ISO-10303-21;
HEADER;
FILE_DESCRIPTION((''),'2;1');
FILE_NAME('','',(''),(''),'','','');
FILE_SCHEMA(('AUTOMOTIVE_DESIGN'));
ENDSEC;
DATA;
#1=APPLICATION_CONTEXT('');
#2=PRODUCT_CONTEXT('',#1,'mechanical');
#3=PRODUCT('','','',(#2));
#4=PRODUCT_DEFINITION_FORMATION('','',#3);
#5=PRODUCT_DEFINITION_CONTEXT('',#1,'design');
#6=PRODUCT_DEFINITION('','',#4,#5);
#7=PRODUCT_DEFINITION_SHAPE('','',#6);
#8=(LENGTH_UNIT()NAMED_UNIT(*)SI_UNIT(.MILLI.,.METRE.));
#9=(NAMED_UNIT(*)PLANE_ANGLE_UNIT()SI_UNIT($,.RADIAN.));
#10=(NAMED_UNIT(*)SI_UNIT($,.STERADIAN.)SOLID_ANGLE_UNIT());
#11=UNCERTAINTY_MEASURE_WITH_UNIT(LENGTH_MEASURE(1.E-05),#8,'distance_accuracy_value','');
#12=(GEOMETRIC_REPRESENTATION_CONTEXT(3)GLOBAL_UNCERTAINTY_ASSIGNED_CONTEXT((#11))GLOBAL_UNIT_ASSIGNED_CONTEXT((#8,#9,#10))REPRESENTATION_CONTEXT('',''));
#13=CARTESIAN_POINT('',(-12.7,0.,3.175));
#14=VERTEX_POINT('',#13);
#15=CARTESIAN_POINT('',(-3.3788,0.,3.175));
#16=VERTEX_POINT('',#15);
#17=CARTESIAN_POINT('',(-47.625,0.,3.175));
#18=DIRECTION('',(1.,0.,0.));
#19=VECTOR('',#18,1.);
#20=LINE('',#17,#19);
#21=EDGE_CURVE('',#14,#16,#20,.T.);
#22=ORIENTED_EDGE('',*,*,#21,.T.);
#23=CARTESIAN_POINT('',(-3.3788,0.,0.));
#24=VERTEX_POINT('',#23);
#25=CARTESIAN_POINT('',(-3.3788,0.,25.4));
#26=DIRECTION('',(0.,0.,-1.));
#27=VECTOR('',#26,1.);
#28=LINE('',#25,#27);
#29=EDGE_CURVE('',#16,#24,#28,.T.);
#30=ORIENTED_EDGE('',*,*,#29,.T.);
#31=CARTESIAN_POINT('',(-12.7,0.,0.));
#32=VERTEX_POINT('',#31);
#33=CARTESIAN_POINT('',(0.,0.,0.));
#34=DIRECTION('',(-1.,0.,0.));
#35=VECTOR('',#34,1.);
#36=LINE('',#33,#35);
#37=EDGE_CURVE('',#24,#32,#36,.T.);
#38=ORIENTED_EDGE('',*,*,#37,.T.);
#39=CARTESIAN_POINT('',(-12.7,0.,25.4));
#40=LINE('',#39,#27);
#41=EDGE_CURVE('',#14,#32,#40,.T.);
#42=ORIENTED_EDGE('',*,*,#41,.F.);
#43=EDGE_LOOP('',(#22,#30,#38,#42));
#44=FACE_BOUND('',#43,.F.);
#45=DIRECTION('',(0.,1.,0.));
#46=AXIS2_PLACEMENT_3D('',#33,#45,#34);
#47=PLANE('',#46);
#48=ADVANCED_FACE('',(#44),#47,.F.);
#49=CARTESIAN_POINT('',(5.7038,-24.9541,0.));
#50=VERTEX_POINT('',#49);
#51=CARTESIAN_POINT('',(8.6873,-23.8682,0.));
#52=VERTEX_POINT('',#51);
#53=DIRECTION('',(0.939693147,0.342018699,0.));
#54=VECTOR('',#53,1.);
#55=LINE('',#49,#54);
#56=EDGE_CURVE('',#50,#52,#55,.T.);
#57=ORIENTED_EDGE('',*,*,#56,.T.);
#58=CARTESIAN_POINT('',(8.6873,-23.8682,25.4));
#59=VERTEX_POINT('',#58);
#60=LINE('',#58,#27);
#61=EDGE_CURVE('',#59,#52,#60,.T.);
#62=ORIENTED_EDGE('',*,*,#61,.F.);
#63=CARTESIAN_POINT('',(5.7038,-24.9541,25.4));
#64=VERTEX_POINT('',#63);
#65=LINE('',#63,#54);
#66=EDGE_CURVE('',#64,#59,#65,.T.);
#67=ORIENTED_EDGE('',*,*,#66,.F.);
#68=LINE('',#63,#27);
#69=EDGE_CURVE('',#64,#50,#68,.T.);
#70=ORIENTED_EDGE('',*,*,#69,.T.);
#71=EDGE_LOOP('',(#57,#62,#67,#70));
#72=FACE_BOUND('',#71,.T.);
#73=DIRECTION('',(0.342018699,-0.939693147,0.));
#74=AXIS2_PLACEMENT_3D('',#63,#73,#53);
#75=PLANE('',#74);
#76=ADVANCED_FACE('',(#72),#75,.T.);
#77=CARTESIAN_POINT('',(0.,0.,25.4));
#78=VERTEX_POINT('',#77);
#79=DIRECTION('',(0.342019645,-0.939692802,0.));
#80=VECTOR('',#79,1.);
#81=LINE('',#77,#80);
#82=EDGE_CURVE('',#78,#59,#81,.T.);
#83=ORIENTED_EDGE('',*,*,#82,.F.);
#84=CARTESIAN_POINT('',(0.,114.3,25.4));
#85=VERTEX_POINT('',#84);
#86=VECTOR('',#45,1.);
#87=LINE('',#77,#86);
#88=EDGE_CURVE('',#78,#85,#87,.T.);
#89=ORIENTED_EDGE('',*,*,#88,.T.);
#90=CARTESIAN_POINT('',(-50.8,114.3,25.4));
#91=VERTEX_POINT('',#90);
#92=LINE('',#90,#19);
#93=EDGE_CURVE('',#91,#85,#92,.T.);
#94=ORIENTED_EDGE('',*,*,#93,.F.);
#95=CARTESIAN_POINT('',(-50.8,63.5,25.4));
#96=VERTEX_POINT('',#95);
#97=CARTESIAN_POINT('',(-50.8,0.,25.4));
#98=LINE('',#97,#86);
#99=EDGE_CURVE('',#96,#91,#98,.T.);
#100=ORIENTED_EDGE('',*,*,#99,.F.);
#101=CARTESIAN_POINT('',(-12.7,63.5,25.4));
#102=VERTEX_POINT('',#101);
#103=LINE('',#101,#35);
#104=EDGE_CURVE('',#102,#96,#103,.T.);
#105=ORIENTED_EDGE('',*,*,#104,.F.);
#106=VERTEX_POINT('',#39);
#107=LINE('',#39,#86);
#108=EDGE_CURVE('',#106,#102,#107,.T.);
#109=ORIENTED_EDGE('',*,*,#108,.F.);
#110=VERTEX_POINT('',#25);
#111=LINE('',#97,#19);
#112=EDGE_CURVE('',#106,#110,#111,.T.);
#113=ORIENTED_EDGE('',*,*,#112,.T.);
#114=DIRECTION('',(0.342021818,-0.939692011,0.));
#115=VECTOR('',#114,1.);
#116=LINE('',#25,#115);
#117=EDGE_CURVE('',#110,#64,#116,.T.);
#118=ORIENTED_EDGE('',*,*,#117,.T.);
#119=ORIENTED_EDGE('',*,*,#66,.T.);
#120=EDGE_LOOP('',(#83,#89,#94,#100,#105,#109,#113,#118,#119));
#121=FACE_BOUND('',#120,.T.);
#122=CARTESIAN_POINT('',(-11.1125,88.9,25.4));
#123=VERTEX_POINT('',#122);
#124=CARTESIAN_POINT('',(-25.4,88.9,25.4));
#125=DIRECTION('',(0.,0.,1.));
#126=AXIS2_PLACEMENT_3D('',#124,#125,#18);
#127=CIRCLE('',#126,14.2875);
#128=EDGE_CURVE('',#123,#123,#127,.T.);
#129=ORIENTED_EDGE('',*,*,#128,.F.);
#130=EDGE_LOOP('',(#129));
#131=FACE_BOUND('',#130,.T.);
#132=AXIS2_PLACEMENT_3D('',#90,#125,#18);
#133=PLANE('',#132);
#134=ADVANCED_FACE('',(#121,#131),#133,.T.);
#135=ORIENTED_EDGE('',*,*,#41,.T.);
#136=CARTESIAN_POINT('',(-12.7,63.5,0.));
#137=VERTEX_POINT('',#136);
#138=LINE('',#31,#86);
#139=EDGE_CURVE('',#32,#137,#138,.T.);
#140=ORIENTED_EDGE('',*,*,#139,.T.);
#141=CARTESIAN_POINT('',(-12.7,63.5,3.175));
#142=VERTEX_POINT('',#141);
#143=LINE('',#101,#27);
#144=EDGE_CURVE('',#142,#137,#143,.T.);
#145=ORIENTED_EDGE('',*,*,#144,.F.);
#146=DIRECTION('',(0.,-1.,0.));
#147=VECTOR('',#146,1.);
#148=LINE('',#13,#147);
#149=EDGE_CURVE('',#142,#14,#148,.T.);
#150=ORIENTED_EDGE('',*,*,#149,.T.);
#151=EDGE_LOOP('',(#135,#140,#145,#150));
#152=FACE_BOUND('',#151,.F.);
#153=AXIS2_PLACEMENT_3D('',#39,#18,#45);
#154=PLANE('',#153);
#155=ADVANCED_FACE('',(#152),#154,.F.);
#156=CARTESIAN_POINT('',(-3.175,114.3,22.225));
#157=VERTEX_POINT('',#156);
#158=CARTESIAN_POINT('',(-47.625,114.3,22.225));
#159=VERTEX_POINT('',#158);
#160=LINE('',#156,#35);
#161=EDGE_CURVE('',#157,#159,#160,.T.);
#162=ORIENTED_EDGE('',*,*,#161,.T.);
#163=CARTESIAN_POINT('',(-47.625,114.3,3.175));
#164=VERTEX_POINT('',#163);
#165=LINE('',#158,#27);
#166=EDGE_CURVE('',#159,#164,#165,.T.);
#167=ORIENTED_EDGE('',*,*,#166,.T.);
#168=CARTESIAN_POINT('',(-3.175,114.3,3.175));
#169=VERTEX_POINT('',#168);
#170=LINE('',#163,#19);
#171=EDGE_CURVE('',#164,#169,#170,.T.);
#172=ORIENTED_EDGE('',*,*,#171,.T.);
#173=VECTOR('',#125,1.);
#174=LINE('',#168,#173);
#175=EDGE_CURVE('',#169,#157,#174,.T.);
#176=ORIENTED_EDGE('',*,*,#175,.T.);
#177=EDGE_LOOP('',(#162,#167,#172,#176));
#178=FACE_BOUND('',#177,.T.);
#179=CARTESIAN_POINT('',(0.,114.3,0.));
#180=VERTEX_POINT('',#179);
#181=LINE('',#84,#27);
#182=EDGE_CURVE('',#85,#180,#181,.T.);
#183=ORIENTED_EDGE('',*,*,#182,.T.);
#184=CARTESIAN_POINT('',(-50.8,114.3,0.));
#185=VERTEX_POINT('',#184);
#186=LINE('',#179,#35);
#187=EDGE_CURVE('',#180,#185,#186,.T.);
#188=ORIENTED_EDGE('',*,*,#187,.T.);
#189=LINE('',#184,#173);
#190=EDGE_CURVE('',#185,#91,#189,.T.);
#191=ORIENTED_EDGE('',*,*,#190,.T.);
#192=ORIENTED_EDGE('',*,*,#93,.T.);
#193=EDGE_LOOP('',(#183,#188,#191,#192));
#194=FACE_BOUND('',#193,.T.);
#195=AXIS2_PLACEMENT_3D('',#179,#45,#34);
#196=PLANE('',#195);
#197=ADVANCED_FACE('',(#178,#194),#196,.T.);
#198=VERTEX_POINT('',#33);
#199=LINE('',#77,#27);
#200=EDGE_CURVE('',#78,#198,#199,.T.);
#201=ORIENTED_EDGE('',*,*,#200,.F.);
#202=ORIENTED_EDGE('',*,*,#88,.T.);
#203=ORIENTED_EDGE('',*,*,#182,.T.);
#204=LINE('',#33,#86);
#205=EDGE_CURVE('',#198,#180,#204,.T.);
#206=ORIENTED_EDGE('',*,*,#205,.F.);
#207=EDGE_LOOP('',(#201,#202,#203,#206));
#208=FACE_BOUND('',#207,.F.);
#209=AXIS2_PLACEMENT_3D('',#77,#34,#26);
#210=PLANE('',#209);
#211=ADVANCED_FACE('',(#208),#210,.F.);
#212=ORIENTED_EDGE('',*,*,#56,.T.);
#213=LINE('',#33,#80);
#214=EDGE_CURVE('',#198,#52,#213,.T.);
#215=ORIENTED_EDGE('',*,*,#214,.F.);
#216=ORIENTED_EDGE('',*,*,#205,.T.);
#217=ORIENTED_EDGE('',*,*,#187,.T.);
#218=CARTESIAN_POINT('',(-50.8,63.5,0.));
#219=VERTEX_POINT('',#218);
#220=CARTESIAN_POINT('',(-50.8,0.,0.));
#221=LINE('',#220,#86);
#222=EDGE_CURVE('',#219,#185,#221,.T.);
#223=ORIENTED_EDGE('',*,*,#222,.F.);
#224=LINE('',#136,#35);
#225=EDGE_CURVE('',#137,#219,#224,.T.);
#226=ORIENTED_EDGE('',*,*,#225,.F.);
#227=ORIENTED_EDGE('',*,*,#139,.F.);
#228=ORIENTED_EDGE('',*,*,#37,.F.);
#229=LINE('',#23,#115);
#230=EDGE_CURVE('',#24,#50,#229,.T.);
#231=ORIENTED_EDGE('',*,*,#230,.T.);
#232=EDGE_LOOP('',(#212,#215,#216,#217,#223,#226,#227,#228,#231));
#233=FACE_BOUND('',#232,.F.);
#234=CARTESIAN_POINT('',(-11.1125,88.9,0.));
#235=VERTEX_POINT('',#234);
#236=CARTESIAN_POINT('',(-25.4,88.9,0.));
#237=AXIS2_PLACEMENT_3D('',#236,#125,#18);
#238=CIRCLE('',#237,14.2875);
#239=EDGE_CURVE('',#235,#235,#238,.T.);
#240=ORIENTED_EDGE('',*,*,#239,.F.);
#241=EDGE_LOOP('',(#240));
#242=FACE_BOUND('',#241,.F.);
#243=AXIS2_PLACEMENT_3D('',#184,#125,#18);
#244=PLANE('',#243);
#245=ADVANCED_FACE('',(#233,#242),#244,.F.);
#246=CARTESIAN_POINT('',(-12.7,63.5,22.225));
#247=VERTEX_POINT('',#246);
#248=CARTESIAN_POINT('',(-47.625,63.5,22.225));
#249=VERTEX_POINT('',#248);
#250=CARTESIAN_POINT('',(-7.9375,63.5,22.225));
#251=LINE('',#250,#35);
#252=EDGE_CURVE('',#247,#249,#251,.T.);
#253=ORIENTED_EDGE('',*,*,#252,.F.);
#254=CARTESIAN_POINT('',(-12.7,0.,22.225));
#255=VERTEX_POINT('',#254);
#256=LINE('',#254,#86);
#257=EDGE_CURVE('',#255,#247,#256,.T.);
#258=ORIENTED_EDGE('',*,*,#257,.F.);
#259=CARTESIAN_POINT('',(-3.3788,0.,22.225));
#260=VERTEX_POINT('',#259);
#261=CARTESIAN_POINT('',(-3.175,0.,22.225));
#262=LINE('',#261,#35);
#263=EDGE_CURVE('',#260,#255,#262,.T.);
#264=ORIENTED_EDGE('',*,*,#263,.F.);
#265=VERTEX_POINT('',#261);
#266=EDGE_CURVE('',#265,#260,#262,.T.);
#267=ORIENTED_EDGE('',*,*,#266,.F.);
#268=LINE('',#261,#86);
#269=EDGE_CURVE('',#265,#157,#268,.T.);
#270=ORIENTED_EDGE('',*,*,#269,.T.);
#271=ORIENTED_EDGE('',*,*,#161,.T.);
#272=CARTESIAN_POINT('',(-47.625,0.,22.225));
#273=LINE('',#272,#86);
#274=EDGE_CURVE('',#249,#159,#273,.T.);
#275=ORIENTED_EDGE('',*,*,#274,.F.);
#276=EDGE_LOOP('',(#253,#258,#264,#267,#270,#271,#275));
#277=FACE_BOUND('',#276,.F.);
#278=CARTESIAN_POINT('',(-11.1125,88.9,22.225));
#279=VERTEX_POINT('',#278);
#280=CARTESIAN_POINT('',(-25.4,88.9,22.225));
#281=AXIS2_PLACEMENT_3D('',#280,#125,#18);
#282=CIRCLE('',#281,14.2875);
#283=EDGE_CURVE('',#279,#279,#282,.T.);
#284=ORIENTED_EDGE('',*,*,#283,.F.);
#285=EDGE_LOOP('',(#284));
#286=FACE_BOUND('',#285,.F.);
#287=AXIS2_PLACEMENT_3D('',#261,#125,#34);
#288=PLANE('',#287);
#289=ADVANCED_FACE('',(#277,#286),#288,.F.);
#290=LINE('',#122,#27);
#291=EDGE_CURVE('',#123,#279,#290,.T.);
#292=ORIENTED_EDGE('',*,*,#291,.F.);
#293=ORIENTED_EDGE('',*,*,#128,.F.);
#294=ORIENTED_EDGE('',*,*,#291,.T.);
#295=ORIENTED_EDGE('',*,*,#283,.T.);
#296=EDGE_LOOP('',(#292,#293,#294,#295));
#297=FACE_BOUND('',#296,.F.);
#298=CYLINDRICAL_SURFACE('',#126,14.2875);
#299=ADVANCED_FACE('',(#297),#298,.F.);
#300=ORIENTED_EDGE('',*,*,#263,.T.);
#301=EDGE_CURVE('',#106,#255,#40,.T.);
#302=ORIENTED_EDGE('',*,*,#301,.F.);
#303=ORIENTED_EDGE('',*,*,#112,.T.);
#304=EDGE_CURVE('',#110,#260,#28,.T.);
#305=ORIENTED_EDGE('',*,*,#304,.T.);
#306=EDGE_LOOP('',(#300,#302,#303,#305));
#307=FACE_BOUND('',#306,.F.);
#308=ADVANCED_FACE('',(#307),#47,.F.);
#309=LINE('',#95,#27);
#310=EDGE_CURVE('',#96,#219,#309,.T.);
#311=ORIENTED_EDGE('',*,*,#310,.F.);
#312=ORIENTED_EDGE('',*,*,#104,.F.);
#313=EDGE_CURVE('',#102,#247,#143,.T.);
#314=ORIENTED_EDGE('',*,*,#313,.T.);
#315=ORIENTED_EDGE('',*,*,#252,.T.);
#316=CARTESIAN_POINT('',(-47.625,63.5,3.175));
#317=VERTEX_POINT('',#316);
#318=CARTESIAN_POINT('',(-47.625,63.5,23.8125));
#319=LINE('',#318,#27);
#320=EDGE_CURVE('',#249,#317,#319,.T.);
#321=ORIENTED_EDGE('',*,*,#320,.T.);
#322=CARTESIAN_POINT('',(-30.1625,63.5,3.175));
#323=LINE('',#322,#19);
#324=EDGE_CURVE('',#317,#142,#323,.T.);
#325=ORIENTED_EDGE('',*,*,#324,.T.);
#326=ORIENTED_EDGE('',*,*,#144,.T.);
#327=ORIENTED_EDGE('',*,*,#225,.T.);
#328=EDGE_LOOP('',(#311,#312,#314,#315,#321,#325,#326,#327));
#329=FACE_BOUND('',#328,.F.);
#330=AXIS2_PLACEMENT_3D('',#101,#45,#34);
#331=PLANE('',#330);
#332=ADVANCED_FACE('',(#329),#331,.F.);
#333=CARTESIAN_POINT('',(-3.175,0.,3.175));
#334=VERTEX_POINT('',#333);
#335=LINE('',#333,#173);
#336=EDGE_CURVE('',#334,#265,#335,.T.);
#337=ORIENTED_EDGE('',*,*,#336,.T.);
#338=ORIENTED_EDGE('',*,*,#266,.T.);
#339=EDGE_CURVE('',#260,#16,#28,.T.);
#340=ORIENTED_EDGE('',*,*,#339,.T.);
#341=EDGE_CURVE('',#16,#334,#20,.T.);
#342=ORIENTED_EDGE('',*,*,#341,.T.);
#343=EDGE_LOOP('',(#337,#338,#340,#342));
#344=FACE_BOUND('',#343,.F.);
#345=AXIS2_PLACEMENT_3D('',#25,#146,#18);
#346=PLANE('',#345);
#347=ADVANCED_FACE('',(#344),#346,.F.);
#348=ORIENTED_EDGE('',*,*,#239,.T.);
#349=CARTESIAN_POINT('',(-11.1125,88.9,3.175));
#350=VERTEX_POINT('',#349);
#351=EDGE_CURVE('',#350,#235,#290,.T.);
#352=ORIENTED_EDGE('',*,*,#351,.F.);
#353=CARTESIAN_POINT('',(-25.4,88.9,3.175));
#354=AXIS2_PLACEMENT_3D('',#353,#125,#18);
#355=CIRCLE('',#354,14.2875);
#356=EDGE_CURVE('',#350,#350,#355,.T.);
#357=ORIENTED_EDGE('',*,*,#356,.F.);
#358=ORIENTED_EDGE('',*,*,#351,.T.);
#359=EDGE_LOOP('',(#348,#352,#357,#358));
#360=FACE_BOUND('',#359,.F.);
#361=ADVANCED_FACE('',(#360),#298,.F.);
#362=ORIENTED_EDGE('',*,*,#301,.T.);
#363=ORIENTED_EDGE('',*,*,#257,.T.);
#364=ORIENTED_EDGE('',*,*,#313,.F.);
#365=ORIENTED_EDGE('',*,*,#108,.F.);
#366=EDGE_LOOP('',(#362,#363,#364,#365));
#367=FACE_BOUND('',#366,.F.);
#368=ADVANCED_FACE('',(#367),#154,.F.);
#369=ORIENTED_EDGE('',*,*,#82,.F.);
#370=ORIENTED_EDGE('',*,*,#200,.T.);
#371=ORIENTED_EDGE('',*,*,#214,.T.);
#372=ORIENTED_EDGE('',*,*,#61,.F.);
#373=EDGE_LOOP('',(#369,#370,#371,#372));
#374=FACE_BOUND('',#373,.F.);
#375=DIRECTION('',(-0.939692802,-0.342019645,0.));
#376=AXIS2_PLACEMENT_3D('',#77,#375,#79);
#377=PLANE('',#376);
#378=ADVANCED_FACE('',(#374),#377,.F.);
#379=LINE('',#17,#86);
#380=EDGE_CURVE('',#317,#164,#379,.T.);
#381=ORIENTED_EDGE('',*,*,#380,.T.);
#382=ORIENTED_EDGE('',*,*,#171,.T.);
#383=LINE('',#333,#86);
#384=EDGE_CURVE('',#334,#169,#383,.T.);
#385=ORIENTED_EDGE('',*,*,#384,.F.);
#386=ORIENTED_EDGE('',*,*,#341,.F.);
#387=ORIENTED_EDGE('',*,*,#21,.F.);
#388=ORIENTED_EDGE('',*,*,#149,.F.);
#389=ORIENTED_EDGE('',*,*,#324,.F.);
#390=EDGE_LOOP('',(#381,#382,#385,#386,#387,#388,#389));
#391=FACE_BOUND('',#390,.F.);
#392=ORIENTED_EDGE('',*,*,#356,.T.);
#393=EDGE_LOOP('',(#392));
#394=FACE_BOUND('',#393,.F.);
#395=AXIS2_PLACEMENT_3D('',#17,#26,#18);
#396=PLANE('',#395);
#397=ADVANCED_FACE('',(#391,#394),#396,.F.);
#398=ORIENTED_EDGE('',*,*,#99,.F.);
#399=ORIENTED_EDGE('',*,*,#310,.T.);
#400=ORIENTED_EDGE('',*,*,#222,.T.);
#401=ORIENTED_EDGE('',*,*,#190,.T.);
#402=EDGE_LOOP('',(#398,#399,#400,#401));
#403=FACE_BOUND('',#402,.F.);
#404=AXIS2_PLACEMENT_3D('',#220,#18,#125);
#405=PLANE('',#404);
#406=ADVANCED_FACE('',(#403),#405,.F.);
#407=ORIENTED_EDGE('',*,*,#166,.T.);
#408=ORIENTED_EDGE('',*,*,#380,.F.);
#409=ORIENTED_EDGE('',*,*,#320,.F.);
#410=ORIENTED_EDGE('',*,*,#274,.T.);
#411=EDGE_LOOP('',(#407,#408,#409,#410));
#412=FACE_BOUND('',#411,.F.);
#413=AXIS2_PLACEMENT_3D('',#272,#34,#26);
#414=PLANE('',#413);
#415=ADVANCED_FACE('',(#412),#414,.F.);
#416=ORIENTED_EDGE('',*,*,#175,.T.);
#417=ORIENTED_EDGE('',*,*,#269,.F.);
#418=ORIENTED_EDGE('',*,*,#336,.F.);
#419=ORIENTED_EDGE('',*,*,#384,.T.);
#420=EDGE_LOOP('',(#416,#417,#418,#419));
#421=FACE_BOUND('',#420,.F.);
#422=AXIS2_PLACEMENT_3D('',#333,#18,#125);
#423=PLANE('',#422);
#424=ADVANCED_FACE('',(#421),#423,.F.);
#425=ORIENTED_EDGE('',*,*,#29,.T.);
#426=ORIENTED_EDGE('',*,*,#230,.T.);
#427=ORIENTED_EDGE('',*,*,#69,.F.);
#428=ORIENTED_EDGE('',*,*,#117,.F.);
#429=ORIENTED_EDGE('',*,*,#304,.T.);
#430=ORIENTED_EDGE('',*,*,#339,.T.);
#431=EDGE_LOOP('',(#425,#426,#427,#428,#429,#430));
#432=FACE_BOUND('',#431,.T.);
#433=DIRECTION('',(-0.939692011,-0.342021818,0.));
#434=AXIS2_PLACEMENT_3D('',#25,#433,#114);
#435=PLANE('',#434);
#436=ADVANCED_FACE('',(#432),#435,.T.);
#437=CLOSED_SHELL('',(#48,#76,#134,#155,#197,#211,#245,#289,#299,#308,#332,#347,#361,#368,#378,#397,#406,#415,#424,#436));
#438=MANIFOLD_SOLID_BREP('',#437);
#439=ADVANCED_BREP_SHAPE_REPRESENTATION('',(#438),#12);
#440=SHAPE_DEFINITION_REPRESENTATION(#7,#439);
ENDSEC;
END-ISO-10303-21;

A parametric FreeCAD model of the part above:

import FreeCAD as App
import Part
import Sketcher
from FreeCAD import Vector
Q = App.Units.Quantity


def add_polygon(sketch, points):
    """Adds a closed chain of lines whose ends are joined by coincident constraints."""
    first, n = sketch.GeometryCount, len(points)
    for a, b in zip(points, points[1:] + points[:1]):
        sketch.addGeometry(Part.LineSegment(App.Vector(*a, 0), App.Vector(*b, 0)), False)
    for i in range(n):
        sketch.addConstraint(Sketcher.Constraint("Coincident", first + i, 2, first + (i + 1) % n, 1))

doc = App.newDocument("Part")
body = doc.addObject("PartDesign::Body", "Body")

# Sketch on XZ plane
sketch1 = body.newObject("Sketcher::SketchObject", "Sketch")
sketch1.AttachmentSupport = (doc.getObject("XZ_Plane"), [""])
sketch1.MapMode = "FlatFace"
add_polygon(sketch1, [(0, 25), (0, 0), (-51, 0), (-51, 25)])  # lines 0-3
add_polygon(sketch1, [(-48, 22), (-48, 3), (-3, 3), (-3, 22)])  # lines 4-7
sketch1.addConstraint([
    Sketcher.Constraint("Vertical", 0),
    Sketcher.Constraint("Horizontal", 1),
    Sketcher.Constraint("Vertical", 2),
    Sketcher.Constraint("Horizontal", 3),
    Sketcher.Constraint("Vertical", 4),
    Sketcher.Constraint("Horizontal", 5),
    Sketcher.Constraint("Vertical", 6),
    Sketcher.Constraint("Horizontal", 7),
    Sketcher.Constraint("Coincident", 0, 2, -1, 1),
    Sketcher.Constraint("DistanceX", 1, 2, 1, 1, Q("2 in")),
    Sketcher.Constraint("DistanceY", 0, 2, 0, 1, Q("1 in")),
    Sketcher.Constraint("DistanceY", -1, 1, 4, 2, Q("0.125 in")),
    Sketcher.Constraint("DistanceX", 5, 2, -1, 1, Q("0.125 in")),
    Sketcher.Constraint("DistanceX", 1, 2, 4, 2, Q("0.125 in")),
    Sketcher.Constraint("DistanceY", 6, 2, 3, 2, Q("0.125 in")),
])
pad1 = body.newObject("PartDesign::Pad", "Pad")
pad1.Profile = sketch1
pad1.Length = Q("4.5 in")
pad1.Reversed = True

# Sketch on XY plane
sketch2 = body.newObject("Sketcher::SketchObject", "Sketch001")
sketch2.AttachmentSupport = (doc.getObject("XY_Plane"), [""])
sketch2.MapMode = "FlatFace"
sketch2.AttachmentOffset = App.Placement(Vector(0, 0, 1 * 25.4), App.Rotation())
add_polygon(sketch2, [(-51, 64), (-51, 0), (-13, 0), (-13, 64)])  # lines 0-3
sketch2.addConstraint([
    Sketcher.Constraint("Vertical", 0),
    Sketcher.Constraint("Horizontal", 1),
    Sketcher.Constraint("Vertical", 2),
    Sketcher.Constraint("Horizontal", 3),
    Sketcher.Constraint("PointOnObject", 0, 2, -1),
    Sketcher.Constraint("DistanceX", 1, 1, 1, 2, Q("1.5 in")),
    Sketcher.Constraint("DistanceY", 0, 2, 0, 1, Q("2.5 in")),
    Sketcher.Constraint("DistanceX", 0, 2, -1, 1, Q("2 in")),
])
pocket1 = body.newObject("PartDesign::Pocket", "Pocket")
pocket1.Profile = sketch2
pocket1.Length = Q("1 in")

# Sketch on XY plane
sketch3 = body.newObject("Sketcher::SketchObject", "Sketch002")
sketch3.AttachmentSupport = (doc.getObject("XY_Plane"), [""])
sketch3.MapMode = "FlatFace"
sketch3.AttachmentOffset = App.Placement(Vector(0, 0, 1 * 25.4), App.Rotation())
sketch3.addGeometry(Part.Circle(Vector(-25, 89, 0), Vector(0, 0, 1), 14), False)
sketch3.addConstraint([
    Sketcher.Constraint("Diameter", 0, Q("1.125 in")),
    Sketcher.Constraint("DistanceX", 0, 3, -1, 1, Q("1 in")),
    Sketcher.Constraint("DistanceY", -1, 1, 0, 3, Q("3.5 in")),
])
pocket2 = body.newObject("PartDesign::Pocket", "Pocket001")
pocket2.Profile = sketch3
pocket2.Length = Q("1 in")

# Sketch on XY plane
sketch4 = body.newObject("Sketcher::SketchObject", "Sketch003")
sketch4.AttachmentSupport = (doc.getObject("XY_Plane"), [""])
sketch4.MapMode = "FlatFace"
sketch4.AttachmentOffset = App.Placement(Vector(0, 0, 1 * 25.4), App.Rotation())
add_polygon(sketch4, [(8.7, -23.9), (0, 0), (-3.4, 0), (5.7, -25)])  # lines 0-3
sketch4.addConstraint([
    Sketcher.Constraint("Horizontal", 1),
    Sketcher.Constraint("Coincident", 0, 2, -1, 1),
    Sketcher.Constraint("Parallel", 0, 2),
    Sketcher.Constraint("Perpendicular", 2, 3),
    Sketcher.Constraint("Distance", 0, Q("1 in")),
    Sketcher.Constraint("Angle", 0, Q("110 deg")),
    Sketcher.Constraint("Distance", 3, Q("0.125 in")),
])
pad2 = body.newObject("PartDesign::Pad", "Pad001")
pad2.Profile = sketch4
pad2.Length = Q("1 in")
pad2.Reversed = True

doc.recompute()
